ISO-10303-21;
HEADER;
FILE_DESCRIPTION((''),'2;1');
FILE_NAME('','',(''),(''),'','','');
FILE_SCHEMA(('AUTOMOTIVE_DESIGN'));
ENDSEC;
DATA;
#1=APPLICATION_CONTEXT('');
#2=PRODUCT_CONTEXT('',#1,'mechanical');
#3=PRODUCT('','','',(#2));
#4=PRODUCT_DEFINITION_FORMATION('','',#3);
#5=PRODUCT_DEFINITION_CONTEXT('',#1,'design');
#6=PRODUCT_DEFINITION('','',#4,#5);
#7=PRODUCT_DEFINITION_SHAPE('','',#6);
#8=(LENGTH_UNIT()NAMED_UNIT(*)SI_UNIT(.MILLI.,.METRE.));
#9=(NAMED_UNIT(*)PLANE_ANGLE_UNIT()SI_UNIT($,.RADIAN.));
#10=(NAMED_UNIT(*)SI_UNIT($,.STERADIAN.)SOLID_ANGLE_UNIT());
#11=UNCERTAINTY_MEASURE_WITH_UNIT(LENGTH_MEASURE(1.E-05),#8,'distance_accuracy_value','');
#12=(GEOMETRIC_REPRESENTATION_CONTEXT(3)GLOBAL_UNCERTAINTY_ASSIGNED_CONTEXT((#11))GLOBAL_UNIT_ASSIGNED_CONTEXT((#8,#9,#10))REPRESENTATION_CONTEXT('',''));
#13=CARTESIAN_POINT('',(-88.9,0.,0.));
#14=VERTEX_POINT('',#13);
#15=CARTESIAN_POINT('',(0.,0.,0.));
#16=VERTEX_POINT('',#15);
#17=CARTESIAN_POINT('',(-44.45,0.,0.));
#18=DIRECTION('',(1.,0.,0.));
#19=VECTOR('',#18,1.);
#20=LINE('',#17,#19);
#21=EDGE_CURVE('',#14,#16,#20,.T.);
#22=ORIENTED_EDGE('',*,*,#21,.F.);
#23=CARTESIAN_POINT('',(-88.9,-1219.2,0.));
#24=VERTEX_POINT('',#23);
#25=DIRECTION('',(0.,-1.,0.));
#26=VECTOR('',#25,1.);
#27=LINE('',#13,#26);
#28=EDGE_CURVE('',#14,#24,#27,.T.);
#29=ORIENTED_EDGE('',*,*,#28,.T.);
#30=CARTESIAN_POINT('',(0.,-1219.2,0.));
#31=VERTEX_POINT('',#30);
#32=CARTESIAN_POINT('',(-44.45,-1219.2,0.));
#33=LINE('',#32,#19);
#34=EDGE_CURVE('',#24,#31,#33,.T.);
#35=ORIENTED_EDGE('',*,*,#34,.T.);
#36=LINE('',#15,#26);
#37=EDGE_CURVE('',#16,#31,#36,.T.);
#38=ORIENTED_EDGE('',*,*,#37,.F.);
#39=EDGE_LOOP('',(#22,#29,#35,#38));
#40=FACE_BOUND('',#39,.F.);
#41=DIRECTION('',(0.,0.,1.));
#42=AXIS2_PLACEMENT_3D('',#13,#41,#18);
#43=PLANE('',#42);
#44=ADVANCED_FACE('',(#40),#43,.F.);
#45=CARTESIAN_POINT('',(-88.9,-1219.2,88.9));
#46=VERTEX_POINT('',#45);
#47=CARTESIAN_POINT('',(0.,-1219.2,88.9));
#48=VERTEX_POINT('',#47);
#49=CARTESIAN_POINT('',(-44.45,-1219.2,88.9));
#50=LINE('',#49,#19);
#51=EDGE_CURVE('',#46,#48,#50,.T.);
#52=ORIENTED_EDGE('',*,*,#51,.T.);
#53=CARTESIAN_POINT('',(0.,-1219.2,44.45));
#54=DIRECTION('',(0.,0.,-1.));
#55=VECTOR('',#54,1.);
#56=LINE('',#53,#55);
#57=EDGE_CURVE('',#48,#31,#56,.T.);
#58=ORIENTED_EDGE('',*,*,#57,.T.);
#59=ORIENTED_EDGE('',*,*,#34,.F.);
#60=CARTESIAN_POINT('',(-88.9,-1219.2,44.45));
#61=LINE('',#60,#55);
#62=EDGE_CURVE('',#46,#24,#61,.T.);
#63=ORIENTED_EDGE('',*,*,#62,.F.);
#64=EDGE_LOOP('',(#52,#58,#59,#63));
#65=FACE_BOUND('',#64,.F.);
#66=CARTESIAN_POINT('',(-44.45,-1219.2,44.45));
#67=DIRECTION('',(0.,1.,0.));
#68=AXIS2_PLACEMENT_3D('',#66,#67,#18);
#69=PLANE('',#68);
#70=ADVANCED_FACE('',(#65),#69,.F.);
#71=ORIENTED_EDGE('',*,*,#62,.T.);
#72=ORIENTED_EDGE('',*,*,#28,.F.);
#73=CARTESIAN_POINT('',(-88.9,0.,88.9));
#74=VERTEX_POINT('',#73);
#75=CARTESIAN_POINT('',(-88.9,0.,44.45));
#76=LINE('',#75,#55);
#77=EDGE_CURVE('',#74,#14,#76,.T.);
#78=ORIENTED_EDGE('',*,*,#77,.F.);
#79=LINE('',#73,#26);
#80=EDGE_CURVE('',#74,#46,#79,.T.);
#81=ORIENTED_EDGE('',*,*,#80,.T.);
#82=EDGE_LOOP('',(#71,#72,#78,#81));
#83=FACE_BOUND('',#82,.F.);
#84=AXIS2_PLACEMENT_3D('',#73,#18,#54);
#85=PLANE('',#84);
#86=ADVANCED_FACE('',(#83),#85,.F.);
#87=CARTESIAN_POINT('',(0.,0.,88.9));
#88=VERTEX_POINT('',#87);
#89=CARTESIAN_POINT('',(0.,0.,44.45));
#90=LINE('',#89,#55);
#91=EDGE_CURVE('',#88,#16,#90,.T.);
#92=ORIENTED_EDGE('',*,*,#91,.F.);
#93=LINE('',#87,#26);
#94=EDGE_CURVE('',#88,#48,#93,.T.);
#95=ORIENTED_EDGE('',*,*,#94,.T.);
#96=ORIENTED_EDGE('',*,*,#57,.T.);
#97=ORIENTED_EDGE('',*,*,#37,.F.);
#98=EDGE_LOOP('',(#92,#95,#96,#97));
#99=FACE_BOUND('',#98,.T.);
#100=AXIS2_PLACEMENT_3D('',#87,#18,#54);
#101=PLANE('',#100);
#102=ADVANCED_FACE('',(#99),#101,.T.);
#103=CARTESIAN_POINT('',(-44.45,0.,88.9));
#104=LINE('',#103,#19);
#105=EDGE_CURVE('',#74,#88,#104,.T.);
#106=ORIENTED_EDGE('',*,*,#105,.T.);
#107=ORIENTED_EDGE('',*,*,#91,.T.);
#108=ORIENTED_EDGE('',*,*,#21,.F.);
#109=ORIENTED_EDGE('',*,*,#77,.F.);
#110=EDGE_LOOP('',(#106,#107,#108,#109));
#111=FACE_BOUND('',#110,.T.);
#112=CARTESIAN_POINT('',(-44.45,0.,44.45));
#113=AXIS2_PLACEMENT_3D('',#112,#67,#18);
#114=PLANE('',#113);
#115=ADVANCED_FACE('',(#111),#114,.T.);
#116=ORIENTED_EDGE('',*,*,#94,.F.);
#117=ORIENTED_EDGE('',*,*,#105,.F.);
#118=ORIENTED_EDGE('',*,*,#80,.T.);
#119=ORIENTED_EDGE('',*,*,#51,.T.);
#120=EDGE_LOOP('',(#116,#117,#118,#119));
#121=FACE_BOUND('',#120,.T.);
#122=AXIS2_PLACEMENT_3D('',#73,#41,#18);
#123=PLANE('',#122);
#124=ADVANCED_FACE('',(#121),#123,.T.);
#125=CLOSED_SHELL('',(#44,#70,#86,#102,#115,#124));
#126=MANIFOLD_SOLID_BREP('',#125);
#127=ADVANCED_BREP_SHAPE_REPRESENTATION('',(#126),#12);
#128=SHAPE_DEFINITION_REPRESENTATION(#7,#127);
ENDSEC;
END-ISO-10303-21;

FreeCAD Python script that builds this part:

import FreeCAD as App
import Part
import Sketcher
from FreeCAD import Vector
Q = App.Units.Quantity


def add_polygon(sketch, points):
    """Adds a closed chain of lines whose ends are joined by coincident constraints."""
    first, n = sketch.GeometryCount, len(points)
    for a, b in zip(points, points[1:] + points[:1]):
        sketch.addGeometry(Part.LineSegment(App.Vector(*a, 0), App.Vector(*b, 0)), False)
    for i in range(n):
        sketch.addConstraint(Sketcher.Constraint("Coincident", first + i, 2, first + (i + 1) % n, 1))

doc = App.newDocument("Part")
body = doc.addObject("PartDesign::Body", "Body")

sketch1 = body.newObject("Sketcher::SketchObject", "Sketch")
sketch1.AttachmentSupport = (doc.getObject("XZ_Plane"), [""])
sketch1.MapMode = "FlatFace"
add_polygon(sketch1, [(-88.9, 0), (-88.9, 88.9), (0, 88.9), (0, 0)])
sketch1.addConstraint([
    Sketcher.Constraint("Vertical", 0),
    Sketcher.Constraint("Horizontal", 1),
    Sketcher.Constraint("Vertical", 2),
    Sketcher.Constraint("Horizontal", 3),
    Sketcher.Constraint("Coincident", 2, 2, -1, 1),
    Sketcher.Constraint("Equal", 3, 0),
    Sketcher.Constraint("DistanceX", 1, 1, 1, 2, Q("3.5 in")),
])
pad1 = body.newObject("PartDesign::Pad", "Pad")
pad1.Profile = sketch1
pad1.Length = Q("48 in")

doc.recompute()
